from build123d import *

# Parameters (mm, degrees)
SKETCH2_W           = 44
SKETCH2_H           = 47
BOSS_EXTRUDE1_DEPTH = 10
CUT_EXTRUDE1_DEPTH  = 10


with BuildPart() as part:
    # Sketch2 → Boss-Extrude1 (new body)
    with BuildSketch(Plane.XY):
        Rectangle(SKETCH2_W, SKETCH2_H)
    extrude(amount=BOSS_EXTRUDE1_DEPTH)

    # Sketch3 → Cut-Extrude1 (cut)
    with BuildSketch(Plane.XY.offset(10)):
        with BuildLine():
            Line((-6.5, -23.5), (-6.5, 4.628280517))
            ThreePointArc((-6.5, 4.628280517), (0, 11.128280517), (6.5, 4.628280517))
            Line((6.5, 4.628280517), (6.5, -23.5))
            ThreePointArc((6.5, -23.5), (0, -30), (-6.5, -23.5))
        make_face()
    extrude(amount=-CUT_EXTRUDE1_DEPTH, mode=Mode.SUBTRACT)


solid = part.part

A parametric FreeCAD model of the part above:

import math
import FreeCAD as App
import Part
import Sketcher

V = App.Vector

doc = App.newDocument("Part")
body = doc.addObject("PartDesign::Body", "Body")

# Sketch on XY plane
sketch1 = doc.addObject("Sketcher::SketchObject", "Sketch")
body.addObject(sketch1)
sketch1.AttachmentSupport = (doc.XY_Plane, [""])
sketch1.MapMode = "FlatFace"
sketch1.addGeometry(Part.LineSegment(V(-22, 24, 0), V(-22, -24, 0)), False)
sketch1.addGeometry(Part.LineSegment(V(-22, -24, 0), V(22, -24, 0)), False)
sketch1.addGeometry(Part.LineSegment(V(22, -24, 0), V(22, 24, 0)), False)
sketch1.addGeometry(Part.LineSegment(V(22, 24, 0), V(-22, 24, 0)), False)
sketch1.addConstraint(Sketcher.Constraint("Coincident", 0, 2, 1, 1))
sketch1.addConstraint(Sketcher.Constraint("Coincident", 1, 2, 2, 1))
sketch1.addConstraint(Sketcher.Constraint("Coincident", 2, 2, 3, 1))
sketch1.addConstraint(Sketcher.Constraint("Coincident", 3, 2, 0, 1))
sketch1.addConstraint(Sketcher.Constraint("Vertical", 0))
sketch1.addConstraint(Sketcher.Constraint("Horizontal", 1))
sketch1.addConstraint(Sketcher.Constraint("Vertical", 2))
sketch1.addConstraint(Sketcher.Constraint("Horizontal", 3))
sketch1.addConstraint(Sketcher.Constraint("Symmetric", 0, 2, 2, 2, -1, 1))
sketch1.addConstraint(Sketcher.Constraint("DistanceX", 1, 1, 1, 2, 44.0))
sketch1.addConstraint(Sketcher.Constraint("DistanceY", 0, 2, 0, 1, 47.0))
pad1 = doc.addObject("PartDesign::Pad", "Pad")
body.addObject(pad1)
pad1.Profile = sketch1
pad1.Length = 10

# Sketch on XY plane
sketch2 = doc.addObject("Sketcher::SketchObject", "Sketch001")
body.addObject(sketch2)
sketch2.AttachmentSupport = (doc.XY_Plane, [""])
sketch2.MapMode = "FlatFace"
sketch2.AttachmentOffset = App.Placement(V(0, 0, 10), App.Rotation())
sketch2.addGeometry(Part.LineSegment(V(-6, 5, 0), V(-6, -24, 0)), False)
sketch2.addGeometry(Part.ArcOfCircle(Part.Circle(V(0, -24, 0), V(0, 0, 1), 6), math.radians(180), math.radians(360)), False)
sketch2.addGeometry(Part.LineSegment(V(6, -24, 0), V(6, 5, 0)), False)
sketch2.addGeometry(Part.ArcOfCircle(Part.Circle(V(0, 5, 0), V(0, 0, 1), 6), math.radians(0), math.radians(180)), False)
sketch2.addConstraint(Sketcher.Constraint("Tangent", 0, 2, 1, 1))
sketch2.addConstraint(Sketcher.Constraint("Tangent", 1, 2, 2, 1))
sketch2.addConstraint(Sketcher.Constraint("Tangent", 2, 2, 3, 1))
sketch2.addConstraint(Sketcher.Constraint("Tangent", 3, 2, 0, 1))
sketch2.addConstraint(Sketcher.Constraint("Vertical", 0))
sketch2.addConstraint(Sketcher.Constraint("Vertical", 2))
sketch2.addConstraint(Sketcher.Constraint("PointOnObject", 1, 3, -2))
sketch2.addConstraint(Sketcher.Constraint("Radius", 1, 6.5))
sketch2.addConstraint(Sketcher.Constraint("DistanceY", 1, 3, -1, 1, 23.5))
sketch2.addConstraint(Sketcher.Constraint("DistanceY", 0, 2, 0, 1, 28.128281))
pocket1 = doc.addObject("PartDesign::Pocket", "Pocket")
body.addObject(pocket1)
pocket1.Profile = sketch2
pocket1.Length = 10

doc.recompute()
